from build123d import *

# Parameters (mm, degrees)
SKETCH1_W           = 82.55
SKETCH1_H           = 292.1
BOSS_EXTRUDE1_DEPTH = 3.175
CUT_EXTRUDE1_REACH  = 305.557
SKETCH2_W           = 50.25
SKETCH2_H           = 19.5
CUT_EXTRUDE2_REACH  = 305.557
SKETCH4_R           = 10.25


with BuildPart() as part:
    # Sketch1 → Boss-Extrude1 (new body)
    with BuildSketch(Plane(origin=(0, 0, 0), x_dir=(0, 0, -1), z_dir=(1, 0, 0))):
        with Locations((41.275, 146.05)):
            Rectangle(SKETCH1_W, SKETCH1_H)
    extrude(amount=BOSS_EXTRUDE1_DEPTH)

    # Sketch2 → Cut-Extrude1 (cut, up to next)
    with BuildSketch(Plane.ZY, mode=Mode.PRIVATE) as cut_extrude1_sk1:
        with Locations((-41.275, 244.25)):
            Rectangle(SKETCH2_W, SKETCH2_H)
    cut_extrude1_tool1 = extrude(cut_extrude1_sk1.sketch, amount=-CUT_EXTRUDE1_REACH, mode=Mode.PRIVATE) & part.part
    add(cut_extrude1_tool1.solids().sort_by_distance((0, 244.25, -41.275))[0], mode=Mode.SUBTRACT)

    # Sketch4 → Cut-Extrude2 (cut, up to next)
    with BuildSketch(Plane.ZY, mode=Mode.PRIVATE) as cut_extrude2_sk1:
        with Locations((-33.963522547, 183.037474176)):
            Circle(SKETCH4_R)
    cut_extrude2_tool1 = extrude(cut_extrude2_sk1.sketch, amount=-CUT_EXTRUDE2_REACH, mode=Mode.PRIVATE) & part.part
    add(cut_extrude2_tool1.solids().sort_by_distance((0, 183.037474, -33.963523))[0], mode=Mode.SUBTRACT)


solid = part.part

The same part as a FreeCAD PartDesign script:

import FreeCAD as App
import Part
import Sketcher
from FreeCAD import Vector
Q = App.Units.Quantity

doc = App.newDocument("Part")
body = doc.addObject("PartDesign::Body", "Body")

# Sketch on YZ plane
sketch1 = doc.addObject("Sketcher::SketchObject", "Sketch")
body.addObject(sketch1)
sketch1.AttachmentSupport = (doc.YZ_Plane, [""])
sketch1.MapMode = "FlatFace"
sketch1.addGeometry([
    Part.LineSegment(Vector(292, 0, 0), Vector(0, 0, 0)),
    Part.LineSegment(Vector(0, 0, 0), Vector(0, -83, 0)),
    Part.LineSegment(Vector(0, -83, 0), Vector(292, -83, 0)),
    Part.LineSegment(Vector(292, -83, 0), Vector(292, 0, 0)),
], False)
sketch1.addConstraint([
    Sketcher.Constraint("Coincident", 0, 2, 1, 1),
    Sketcher.Constraint("Coincident", 1, 2, 2, 1),
    Sketcher.Constraint("Coincident", 2, 2, 3, 1),
    Sketcher.Constraint("Coincident", 3, 2, 0, 1),
    Sketcher.Constraint("Horizontal", 0),
    Sketcher.Constraint("Vertical", 1),
    Sketcher.Constraint("Horizontal", 2),
    Sketcher.Constraint("Vertical", 3),
    Sketcher.Constraint("Coincident", 0, 2, -1, 1),
    Sketcher.Constraint("DistanceX", 0, 2, 0, 1, Q("11.5 in")),
    Sketcher.Constraint("DistanceY", 1, 2, 1, 1, Q("3.25 in")),
])
pad1 = doc.addObject("PartDesign::Pad", "Pad")
body.addObject(pad1)
pad1.Profile = sketch1
pad1.Length = Q("0.125 in")

# Sketch on YZ plane
sketch2 = doc.addObject("Sketcher::SketchObject", "Sketch001")
body.addObject(sketch2)
sketch2.AttachmentSupport = (doc.YZ_Plane, [""])
sketch2.MapMode = "FlatFace"
sketch2.addGeometry([
    Part.LineSegment(Vector(254, -66, 0), Vector(234, -66, 0)),
    Part.LineSegment(Vector(234, -66, 0), Vector(234, -16, 0)),
    Part.LineSegment(Vector(234, -16, 0), Vector(254, -16, 0)),
    Part.LineSegment(Vector(254, -16, 0), Vector(254, -66, 0)),
], False)
sketch2.addConstraint([
    Sketcher.Constraint("Coincident", 0, 2, 1, 1),
    Sketcher.Constraint("Coincident", 1, 2, 2, 1),
    Sketcher.Constraint("Coincident", 2, 2, 3, 1),
    Sketcher.Constraint("Coincident", 3, 2, 0, 1),
    Sketcher.Constraint("Horizontal", 0),
    Sketcher.Constraint("Vertical", 1),
    Sketcher.Constraint("Horizontal", 2),
    Sketcher.Constraint("Vertical", 3),
    Sketcher.Constraint("DistanceX", -1, 1, 2, 2, Q("10 in")),
    Sketcher.Constraint("DistanceX", 0, 2, 0, 1, 19.5),
    Sketcher.Constraint("DistanceY", 1, 1, 1, 2, 50.25),
    Sketcher.Constraint("DistanceY", 0, 2, -1, 1, 66.4),
])
pocket1 = doc.addObject("PartDesign::Pocket", "Pocket")
body.addObject(pocket1)
pocket1.Profile = sketch2
pocket1.Type = "UpToFirst"
pocket1.Reversed = True

# Sketch on YZ plane
sketch3 = doc.addObject("Sketcher::SketchObject", "Sketch002")
body.addObject(sketch3)
sketch3.AttachmentSupport = (doc.YZ_Plane, [""])
sketch3.MapMode = "FlatFace"
sketch3.addGeometry(Part.Circle(Vector(183, -34, 0), Vector(0, 0, 1), 10), False)
sketch3.addConstraint([
    Sketcher.Constraint("Diameter", 0, 20.5),
    Sketcher.Constraint("DistanceX", -1, 1, 0, 3, 183.037474),
    Sketcher.Constraint("DistanceY", 0, 3, -1, 1, 33.963523),
])
pocket2 = doc.addObject("PartDesign::Pocket", "Pocket001")
body.addObject(pocket2)
pocket2.Profile = sketch3
pocket2.Type = "UpToFirst"
pocket2.Reversed = True

doc.recompute()
